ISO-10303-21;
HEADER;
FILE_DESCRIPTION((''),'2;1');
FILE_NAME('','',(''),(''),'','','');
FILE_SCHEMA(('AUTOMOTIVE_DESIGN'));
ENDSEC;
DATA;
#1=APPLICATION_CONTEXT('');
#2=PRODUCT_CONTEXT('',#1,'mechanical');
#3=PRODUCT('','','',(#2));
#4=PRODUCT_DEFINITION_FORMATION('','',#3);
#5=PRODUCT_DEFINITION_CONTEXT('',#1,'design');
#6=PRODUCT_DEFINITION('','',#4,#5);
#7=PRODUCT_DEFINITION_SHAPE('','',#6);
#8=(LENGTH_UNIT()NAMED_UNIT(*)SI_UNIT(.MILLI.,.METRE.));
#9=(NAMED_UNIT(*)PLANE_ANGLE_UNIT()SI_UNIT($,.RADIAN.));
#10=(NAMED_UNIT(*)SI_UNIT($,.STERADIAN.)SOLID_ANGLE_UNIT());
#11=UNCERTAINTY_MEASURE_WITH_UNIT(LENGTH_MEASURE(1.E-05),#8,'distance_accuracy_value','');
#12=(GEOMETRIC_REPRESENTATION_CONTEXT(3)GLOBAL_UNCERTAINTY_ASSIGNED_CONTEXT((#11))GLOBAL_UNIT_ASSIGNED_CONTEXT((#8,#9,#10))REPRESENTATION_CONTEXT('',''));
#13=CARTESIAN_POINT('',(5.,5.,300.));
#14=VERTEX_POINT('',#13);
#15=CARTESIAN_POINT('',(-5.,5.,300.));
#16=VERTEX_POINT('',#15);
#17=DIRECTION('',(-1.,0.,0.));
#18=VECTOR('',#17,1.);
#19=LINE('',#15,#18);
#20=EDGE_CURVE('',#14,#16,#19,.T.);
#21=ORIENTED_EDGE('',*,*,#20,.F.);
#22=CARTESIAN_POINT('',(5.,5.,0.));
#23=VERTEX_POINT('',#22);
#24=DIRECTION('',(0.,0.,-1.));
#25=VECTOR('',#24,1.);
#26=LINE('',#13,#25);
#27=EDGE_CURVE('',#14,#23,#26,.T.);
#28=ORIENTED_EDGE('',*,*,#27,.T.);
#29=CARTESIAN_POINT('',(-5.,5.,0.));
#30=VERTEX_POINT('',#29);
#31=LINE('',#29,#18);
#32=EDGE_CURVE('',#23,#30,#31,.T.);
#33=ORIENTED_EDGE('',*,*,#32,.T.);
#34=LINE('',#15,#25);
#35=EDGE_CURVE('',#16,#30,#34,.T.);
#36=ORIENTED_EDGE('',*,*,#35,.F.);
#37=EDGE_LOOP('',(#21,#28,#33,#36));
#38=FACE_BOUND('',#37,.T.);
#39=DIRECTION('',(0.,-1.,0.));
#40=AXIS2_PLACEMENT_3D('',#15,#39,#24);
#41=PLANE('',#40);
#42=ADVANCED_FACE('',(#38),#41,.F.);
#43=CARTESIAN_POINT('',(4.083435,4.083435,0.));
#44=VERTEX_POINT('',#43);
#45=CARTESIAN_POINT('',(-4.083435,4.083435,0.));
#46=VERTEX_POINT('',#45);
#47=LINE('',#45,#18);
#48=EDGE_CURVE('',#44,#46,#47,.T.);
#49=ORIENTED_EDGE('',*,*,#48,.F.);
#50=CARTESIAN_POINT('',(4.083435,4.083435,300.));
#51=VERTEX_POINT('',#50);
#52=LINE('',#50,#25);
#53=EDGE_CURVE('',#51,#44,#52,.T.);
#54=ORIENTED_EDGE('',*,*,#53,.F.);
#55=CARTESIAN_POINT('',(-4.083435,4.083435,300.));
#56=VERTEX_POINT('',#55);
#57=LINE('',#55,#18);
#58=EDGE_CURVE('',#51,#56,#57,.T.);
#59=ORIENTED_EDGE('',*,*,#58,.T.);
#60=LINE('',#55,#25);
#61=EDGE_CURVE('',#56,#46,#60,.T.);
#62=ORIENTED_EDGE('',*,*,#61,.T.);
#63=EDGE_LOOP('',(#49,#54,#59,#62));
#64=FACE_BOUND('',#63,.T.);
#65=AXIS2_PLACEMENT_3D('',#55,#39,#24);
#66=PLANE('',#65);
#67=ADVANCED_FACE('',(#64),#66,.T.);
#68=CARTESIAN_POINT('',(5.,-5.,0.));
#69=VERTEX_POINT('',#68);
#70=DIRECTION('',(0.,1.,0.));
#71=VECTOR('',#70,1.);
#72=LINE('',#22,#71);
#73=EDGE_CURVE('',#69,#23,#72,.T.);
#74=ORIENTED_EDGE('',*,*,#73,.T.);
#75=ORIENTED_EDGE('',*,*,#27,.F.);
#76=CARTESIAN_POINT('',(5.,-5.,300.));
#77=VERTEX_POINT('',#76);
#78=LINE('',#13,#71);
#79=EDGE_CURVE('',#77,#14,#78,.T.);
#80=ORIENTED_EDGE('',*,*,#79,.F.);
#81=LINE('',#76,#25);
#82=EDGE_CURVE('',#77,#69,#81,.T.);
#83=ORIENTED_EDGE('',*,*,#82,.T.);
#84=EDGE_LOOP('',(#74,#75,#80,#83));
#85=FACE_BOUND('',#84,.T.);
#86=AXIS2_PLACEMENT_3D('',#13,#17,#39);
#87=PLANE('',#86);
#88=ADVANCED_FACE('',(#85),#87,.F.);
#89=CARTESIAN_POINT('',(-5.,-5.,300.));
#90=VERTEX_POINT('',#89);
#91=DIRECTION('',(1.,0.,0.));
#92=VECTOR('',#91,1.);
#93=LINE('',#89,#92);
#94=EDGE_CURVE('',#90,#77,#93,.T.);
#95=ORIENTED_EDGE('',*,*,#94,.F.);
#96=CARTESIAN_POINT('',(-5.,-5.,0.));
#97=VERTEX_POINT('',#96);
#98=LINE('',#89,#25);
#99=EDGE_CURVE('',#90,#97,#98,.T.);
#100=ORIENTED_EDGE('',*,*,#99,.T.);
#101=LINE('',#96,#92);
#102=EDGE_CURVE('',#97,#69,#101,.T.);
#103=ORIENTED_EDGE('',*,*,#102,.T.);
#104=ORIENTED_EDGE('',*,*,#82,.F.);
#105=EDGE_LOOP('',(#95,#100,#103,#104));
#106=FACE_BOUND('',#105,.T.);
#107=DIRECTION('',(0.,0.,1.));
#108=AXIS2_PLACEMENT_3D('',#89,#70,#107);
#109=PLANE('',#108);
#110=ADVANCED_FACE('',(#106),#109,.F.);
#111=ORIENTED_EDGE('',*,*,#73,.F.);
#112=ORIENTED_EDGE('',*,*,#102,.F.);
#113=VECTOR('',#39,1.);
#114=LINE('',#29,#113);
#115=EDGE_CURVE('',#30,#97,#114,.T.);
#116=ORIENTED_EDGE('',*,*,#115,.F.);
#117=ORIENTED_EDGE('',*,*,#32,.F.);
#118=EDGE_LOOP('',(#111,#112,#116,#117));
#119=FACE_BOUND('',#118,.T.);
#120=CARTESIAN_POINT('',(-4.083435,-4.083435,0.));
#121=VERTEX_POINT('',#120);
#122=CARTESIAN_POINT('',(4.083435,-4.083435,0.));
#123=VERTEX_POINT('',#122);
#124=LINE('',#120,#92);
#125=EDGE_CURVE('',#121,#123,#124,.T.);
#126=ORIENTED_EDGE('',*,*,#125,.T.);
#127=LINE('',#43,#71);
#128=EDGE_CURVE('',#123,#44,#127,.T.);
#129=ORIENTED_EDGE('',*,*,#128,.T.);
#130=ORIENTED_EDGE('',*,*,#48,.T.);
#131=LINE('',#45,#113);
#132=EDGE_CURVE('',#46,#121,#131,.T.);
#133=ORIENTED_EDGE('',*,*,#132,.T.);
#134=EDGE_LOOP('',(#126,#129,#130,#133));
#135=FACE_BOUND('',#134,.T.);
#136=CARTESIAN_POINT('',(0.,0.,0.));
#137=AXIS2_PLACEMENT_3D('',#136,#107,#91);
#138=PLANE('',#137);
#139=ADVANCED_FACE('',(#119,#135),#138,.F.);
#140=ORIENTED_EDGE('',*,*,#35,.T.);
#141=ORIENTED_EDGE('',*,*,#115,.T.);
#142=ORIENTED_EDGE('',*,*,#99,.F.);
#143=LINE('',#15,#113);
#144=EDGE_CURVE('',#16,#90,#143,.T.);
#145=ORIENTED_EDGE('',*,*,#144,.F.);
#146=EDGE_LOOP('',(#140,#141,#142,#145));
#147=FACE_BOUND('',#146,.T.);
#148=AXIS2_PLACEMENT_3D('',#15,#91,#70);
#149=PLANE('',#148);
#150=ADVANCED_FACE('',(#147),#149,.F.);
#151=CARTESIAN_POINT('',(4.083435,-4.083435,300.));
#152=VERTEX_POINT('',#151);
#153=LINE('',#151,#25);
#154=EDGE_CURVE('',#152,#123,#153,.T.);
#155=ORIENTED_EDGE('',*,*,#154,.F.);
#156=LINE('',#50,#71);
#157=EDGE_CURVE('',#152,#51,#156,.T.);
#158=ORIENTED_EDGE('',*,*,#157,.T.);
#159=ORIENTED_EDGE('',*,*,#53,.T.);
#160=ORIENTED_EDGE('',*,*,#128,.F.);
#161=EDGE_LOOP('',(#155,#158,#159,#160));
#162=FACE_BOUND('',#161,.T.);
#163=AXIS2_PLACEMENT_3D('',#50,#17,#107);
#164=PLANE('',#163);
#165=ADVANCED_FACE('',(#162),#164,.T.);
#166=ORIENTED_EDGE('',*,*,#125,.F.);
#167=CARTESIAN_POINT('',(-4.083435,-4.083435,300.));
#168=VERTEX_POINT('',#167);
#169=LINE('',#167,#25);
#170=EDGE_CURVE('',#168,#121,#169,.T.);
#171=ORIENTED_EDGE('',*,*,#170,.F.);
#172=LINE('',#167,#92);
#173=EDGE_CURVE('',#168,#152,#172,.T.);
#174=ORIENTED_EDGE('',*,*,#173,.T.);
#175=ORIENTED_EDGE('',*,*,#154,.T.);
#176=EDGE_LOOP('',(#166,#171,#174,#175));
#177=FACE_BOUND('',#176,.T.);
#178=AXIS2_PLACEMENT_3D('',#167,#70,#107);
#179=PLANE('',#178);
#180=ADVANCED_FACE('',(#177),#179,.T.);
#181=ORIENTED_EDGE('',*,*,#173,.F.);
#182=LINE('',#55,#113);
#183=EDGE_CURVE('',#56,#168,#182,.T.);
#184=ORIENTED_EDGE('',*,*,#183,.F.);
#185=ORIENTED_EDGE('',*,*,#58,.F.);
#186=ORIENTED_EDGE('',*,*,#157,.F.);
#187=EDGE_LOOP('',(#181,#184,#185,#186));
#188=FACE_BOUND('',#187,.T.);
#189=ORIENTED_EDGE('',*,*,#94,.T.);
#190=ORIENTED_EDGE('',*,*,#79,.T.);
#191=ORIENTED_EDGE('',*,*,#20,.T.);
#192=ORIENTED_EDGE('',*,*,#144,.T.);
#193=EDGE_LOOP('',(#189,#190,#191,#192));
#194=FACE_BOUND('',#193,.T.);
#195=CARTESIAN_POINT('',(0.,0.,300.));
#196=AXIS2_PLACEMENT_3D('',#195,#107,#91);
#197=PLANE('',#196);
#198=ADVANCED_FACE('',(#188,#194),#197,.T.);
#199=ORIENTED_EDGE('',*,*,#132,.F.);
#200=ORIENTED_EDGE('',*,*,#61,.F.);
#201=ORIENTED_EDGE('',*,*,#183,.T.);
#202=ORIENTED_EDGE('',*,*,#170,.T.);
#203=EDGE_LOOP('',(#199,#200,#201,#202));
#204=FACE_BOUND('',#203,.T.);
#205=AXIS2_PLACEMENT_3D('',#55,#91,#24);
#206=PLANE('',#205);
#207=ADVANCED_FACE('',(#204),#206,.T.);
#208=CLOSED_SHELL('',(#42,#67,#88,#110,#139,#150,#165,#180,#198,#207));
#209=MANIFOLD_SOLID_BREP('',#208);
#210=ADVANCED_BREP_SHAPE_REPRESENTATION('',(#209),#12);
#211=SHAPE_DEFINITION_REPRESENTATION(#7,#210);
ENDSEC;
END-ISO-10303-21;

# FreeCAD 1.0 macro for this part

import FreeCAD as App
import Part
import Sketcher
from FreeCAD import Vector

doc = App.newDocument("Part")
body = doc.addObject("PartDesign::Body", "Body")

# Sketch on XY plane
sketch1 = doc.addObject("Sketcher::SketchObject", "Sketch")
body.addObject(sketch1)
sketch1.AttachmentSupport = (doc.XY_Plane, [""])
sketch1.MapMode = "FlatFace"
sketch1.addGeometry([
    Part.LineSegment(Vector(-5, 5, 0), Vector(-5, -5, 0)),  # 0
    Part.LineSegment(Vector(-5, -5, 0), Vector(5, -5, 0)),  # 1
    Part.LineSegment(Vector(5, -5, 0), Vector(5, 5, 0)),  # 2
    Part.LineSegment(Vector(5, 5, 0), Vector(-5, 5, 0)),  # 3
    Part.LineSegment(Vector(4, -4, 0), Vector(-4, -4, 0)),  # 4
    Part.LineSegment(Vector(-4, -4, 0), Vector(-4, 4, 0)),  # 5
    Part.LineSegment(Vector(-4, 4, 0), Vector(4, 4, 0)),  # 6
    Part.LineSegment(Vector(4, 4, 0), Vector(4, -4, 0)),  # 7
], False)
sketch1.addConstraint([
    Sketcher.Constraint("Coincident", 0, 2, 1, 1),
    Sketcher.Constraint("Coincident", 1, 2, 2, 1),
    Sketcher.Constraint("Coincident", 2, 2, 3, 1),
    Sketcher.Constraint("Coincident", 3, 2, 0, 1),
    Sketcher.Constraint("Coincident", 4, 2, 5, 1),
    Sketcher.Constraint("Coincident", 5, 2, 6, 1),
    Sketcher.Constraint("Coincident", 6, 2, 7, 1),
    Sketcher.Constraint("Coincident", 7, 2, 4, 1),
    Sketcher.Constraint("Vertical", 0),
    Sketcher.Constraint("Horizontal", 1),
    Sketcher.Constraint("Vertical", 2),
    Sketcher.Constraint("Horizontal", 3),
    Sketcher.Constraint("Horizontal", 4),
    Sketcher.Constraint("Vertical", 5),
    Sketcher.Constraint("Horizontal", 6),
    Sketcher.Constraint("Vertical", 7),
    Sketcher.Constraint("Symmetric", 0, 2, 2, 2, -1, 1),
    Sketcher.Constraint("Symmetric", 4, 2, 6, 2, -1, 1),
    Sketcher.Constraint("Equal", 3, 0),
    Sketcher.Constraint("Equal", 6, 5),
    Sketcher.Constraint("DistanceX", 1, 1, 1, 2, 10.0),
    Sketcher.Constraint("DistanceX", 4, 2, 4, 1, 8.166871),
])
pad1 = doc.addObject("PartDesign::Pad", "Pad")
body.addObject(pad1)
pad1.Profile = sketch1
pad1.Length = 300

doc.recompute()
